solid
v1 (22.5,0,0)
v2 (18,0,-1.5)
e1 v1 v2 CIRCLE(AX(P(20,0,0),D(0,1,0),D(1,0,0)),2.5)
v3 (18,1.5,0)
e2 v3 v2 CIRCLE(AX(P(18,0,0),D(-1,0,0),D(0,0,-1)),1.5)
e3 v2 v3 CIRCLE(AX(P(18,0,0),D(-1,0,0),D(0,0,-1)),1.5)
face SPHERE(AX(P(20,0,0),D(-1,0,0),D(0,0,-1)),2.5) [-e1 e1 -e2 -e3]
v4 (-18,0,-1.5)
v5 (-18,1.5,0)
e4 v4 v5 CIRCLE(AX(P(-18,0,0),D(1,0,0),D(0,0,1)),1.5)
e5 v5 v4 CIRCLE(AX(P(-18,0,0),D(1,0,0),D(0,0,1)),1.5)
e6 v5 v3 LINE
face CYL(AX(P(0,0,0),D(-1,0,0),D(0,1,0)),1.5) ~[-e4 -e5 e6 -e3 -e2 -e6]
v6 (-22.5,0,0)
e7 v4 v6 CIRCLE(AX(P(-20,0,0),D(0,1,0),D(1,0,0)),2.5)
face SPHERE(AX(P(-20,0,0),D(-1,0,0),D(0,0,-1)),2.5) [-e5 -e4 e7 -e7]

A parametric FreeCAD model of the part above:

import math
import FreeCAD as App
import Part
import Sketcher

V = App.Vector

doc = App.newDocument("Part")
params = doc.addObject("Spreadsheet::Sheet", "Params")
for row, (alias, value) in enumerate([
    ("sketch1_diameter", "3 mm"),
    ("pad1_length", "40 mm"),
    ("sketch2_radius", "2.5 mm"),
    ("revolution_angle", "360 deg"),
], start=1):
    params.set(f"A{row}", alias)
    params.set(f"B{row}", "=" + value)
    params.setAlias(f"B{row}", alias)

body = doc.addObject("PartDesign::Body", "Body")

sketch1 = doc.addObject("Sketcher::SketchObject", "Sketch")
body.addObject(sketch1)
sketch1.AttachmentSupport = (doc.YZ_Plane, [""])
sketch1.MapMode = "FlatFace"
sketch1.addGeometry(Part.Circle(V(0, 0, 0), V(0, 0, 1), 1.5), False)
sketch1.addConstraint([
    Sketcher.Constraint("Coincident", 0, 3, -1, 1),
    Sketcher.Constraint("Diameter", 0, 3.0),
])
sketch1.setExpression("Constraints[1]", "Params.sketch1_diameter")
pad1 = doc.addObject("PartDesign::Pad", "Pad")
body.addObject(pad1)
pad1.Profile = sketch1
pad1.setExpression("Length", "Params.pad1_length")
pad1.Midplane = True

sketch2 = doc.addObject("Sketcher::SketchObject", "Sketch001")
body.addObject(sketch2)
sketch2.AttachmentSupport = (doc.XZ_Plane, [""])
sketch2.MapMode = "FlatFace"
sketch2.addGeometry([
    Part.LineSegment(V(-22.5, 0, 0), V(-17.5, 0, 0)),
    Part.ArcOfCircle(Part.Circle(V(-20, 0, 0), V(0, 0, 1), 2.5), math.radians(180), math.radians(360)),
    Part.LineSegment(V(17.5, 0, 0), V(22.5, 0, 0)),
    Part.ArcOfCircle(Part.Circle(V(20, 0, 0), V(0, 0, 1), 2.5), math.radians(180), math.radians(360)),
], False)
sketch2.addConstraint([
    Sketcher.Constraint("Coincident", 0, 1, 1, 1),
    Sketcher.Constraint("Coincident", 1, 2, 0, 2),
    Sketcher.Constraint("Coincident", 2, 1, 3, 1),
    Sketcher.Constraint("Coincident", 3, 2, 2, 2),
    Sketcher.Constraint("Horizontal", 0),
    Sketcher.Constraint("Horizontal", 2),
    Sketcher.Constraint("Equal", 1, 3),
    Sketcher.Constraint("Symmetric", 1, 3, 3, 3, -1, 1),
    Sketcher.Constraint("PointOnObject", 1, 3, -1),
    Sketcher.Constraint("PointOnObject", 0, 1, -1),
    Sketcher.Constraint("PointOnObject", 2, 1, -1),
    Sketcher.Constraint("Radius", 1, 2.5),
    Sketcher.Constraint("DistanceX", 1, 3, -1, 1, 20.0),
])
sketch2.setExpression("Constraints[11]", "Params.sketch2_radius")
revolution = doc.addObject("PartDesign::Revolution", "Revolution")
body.addObject(revolution)
revolution.Profile = sketch2
revolution.ReferenceAxis = (sketch2, ["H_Axis"])
revolution.setExpression("Angle", "Params.revolution_angle")

doc.recompute()
